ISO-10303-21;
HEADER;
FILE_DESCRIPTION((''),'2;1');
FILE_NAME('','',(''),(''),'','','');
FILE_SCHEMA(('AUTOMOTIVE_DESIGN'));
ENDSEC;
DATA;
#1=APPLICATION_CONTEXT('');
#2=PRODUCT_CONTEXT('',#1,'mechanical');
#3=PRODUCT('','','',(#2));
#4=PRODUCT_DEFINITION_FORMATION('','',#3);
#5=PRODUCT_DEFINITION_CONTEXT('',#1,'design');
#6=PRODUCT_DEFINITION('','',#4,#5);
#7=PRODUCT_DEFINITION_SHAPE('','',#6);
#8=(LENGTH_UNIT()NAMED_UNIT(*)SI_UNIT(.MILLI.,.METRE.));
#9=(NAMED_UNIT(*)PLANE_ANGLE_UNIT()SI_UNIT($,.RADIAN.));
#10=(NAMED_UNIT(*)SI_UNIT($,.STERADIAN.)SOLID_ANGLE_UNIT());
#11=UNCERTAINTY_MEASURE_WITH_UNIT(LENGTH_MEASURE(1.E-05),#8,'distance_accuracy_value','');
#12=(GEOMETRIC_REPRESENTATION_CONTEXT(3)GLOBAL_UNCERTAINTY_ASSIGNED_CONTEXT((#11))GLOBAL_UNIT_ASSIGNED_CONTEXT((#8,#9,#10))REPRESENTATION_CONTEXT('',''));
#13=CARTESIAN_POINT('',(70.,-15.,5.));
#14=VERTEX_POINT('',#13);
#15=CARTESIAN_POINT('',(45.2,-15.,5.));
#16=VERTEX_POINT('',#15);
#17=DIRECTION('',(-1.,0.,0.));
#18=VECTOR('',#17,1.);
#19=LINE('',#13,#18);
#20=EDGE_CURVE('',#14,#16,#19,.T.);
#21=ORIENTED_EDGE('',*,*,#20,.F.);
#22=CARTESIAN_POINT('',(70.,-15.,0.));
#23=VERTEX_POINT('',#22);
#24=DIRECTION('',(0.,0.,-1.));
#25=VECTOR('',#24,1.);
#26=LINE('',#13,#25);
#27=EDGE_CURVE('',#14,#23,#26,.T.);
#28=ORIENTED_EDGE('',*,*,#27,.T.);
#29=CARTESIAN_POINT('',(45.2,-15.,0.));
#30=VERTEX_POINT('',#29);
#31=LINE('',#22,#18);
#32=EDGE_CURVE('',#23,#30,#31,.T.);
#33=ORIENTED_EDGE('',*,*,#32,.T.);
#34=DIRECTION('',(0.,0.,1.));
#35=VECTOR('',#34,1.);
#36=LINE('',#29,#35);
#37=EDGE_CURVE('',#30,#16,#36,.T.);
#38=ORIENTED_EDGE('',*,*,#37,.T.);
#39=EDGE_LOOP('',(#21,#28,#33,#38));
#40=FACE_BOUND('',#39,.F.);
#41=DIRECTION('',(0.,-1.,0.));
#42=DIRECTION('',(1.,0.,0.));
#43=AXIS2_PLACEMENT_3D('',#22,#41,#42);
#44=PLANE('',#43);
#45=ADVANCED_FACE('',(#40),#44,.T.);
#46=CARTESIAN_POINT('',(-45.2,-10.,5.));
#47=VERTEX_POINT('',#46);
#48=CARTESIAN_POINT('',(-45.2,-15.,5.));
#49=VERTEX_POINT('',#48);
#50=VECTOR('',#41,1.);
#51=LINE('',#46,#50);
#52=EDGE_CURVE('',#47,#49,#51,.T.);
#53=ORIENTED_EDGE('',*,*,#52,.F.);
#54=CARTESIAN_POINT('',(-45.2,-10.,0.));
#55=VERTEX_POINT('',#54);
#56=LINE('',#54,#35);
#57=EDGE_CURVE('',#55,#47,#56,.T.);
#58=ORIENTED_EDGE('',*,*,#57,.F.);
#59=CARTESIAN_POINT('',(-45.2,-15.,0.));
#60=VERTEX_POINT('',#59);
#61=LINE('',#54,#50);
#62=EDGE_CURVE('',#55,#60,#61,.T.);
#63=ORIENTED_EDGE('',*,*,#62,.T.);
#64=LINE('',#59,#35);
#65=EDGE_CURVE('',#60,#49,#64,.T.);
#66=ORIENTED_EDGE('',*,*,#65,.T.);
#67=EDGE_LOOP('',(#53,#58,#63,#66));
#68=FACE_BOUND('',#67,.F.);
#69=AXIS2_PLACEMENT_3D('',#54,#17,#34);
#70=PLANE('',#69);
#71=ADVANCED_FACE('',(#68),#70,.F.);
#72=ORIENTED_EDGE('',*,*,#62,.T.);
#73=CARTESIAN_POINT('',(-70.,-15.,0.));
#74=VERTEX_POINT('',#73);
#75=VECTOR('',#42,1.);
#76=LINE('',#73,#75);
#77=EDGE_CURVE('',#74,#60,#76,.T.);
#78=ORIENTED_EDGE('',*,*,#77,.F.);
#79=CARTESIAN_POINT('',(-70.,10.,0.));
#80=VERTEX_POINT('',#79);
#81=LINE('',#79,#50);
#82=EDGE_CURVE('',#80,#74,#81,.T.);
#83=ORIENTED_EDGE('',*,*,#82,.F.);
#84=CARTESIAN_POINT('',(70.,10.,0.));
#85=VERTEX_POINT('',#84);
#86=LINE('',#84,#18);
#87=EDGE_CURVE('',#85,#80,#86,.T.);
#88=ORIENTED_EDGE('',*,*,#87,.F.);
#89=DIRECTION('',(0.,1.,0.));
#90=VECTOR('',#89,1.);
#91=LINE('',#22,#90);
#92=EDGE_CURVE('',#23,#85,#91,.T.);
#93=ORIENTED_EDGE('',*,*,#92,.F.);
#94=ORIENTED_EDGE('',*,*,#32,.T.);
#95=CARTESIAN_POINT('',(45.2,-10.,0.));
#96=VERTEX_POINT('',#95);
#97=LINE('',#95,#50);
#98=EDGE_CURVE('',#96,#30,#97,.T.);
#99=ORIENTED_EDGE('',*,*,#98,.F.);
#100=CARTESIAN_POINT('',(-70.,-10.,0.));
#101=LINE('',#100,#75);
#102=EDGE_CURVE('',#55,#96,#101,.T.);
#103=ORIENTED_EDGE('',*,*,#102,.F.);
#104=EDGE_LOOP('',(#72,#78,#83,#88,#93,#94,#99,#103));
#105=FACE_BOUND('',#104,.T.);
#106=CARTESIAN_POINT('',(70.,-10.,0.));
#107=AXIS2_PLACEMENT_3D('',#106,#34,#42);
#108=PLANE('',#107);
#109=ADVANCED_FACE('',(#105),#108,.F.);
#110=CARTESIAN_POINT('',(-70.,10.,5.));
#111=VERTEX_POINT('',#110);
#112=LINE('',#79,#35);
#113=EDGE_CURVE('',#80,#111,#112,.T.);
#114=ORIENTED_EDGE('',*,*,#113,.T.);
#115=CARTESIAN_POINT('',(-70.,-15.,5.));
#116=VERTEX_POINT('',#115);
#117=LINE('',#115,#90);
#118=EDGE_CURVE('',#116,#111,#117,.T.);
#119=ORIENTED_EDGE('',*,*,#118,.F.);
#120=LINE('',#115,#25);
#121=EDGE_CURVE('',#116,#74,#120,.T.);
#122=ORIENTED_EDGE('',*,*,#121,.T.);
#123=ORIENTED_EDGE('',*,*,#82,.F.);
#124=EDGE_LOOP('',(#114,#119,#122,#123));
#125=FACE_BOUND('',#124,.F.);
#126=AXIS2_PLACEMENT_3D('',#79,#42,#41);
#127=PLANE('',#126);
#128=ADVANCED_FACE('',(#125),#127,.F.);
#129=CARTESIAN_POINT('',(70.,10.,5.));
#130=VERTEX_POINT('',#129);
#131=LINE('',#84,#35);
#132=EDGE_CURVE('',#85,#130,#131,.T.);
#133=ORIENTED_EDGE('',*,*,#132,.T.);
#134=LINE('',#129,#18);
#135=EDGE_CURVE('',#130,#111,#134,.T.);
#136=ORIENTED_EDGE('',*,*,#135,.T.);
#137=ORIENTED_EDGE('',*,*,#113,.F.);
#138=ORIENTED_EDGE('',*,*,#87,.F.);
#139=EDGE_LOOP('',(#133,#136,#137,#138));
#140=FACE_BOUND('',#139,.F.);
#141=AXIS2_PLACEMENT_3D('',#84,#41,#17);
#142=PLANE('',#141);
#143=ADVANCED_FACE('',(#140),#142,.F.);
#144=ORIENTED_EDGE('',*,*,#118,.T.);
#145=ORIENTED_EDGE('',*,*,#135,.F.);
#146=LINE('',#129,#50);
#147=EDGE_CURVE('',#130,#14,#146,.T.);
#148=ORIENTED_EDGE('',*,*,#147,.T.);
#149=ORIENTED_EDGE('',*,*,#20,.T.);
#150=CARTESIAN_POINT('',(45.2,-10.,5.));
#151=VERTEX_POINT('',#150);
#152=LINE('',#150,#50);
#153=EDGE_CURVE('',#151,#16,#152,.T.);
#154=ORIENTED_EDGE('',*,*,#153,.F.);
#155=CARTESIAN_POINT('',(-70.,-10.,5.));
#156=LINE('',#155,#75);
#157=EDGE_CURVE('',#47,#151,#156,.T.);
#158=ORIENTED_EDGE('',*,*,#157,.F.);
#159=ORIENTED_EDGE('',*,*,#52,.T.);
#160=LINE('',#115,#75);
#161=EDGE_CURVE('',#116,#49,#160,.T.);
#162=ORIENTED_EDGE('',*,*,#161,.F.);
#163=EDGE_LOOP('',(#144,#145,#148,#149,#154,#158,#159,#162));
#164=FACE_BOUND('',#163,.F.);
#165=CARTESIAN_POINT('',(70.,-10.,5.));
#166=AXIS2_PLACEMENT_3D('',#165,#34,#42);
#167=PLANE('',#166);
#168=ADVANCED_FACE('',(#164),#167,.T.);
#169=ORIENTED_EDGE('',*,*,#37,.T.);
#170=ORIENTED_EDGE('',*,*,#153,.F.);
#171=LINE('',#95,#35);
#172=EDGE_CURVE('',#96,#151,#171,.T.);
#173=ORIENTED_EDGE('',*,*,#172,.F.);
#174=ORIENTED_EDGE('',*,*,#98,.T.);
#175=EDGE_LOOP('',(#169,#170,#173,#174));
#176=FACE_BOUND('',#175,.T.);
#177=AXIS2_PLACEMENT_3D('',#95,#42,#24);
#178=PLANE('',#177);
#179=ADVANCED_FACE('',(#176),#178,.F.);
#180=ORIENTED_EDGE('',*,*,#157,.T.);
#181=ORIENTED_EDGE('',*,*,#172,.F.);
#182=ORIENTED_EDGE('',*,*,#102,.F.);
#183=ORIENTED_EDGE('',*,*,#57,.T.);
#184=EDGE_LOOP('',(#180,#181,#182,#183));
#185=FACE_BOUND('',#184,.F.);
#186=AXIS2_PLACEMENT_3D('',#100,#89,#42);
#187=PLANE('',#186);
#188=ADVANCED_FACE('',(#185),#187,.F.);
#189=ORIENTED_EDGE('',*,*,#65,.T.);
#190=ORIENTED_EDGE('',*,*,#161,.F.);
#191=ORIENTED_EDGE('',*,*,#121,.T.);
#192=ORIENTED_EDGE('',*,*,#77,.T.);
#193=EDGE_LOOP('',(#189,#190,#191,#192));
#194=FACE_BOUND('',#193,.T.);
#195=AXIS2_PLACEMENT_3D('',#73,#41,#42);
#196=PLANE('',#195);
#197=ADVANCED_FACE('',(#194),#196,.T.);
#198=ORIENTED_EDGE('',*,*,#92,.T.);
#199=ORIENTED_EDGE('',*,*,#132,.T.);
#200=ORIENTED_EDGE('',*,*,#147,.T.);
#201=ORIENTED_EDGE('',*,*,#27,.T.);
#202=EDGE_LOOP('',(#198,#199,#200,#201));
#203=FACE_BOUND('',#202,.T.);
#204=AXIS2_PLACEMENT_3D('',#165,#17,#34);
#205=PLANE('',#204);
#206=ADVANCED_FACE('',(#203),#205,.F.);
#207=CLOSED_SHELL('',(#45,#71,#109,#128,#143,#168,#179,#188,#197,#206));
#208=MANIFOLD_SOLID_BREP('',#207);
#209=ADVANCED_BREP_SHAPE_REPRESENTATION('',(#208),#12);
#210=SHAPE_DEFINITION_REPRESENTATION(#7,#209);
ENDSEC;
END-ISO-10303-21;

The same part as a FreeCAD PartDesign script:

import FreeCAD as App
import Part
import Sketcher
Q = App.Units.Quantity


def add_polygon(sketch, points):
    """Adds a closed chain of lines whose ends are joined by coincident constraints."""
    first, n = sketch.GeometryCount, len(points)
    for a, b in zip(points, points[1:] + points[:1]):
        sketch.addGeometry(Part.LineSegment(App.Vector(*a, 0), App.Vector(*b, 0)), False)
    for i in range(n):
        sketch.addConstraint(Sketcher.Constraint("Coincident", first + i, 2, first + (i + 1) % n, 1))

doc = App.newDocument("Part")
params = doc.addObject("Spreadsheet::Sheet", "Params")
for row, (alias, value) in enumerate([
    ("sketch1_width", "140 mm"),
    ("sketch1_height", "20 mm"),
    ("pad1_length", "5 mm"),
    ("sketch2_width", "24.8 mm"),
    ("sketch2_height", "5 mm"),
    ("pad2_length", "5 mm"),
], start=1):
    params.set(f"A{row}", alias)
    params.set(f"B{row}", "=" + value)
    params.setAlias(f"B{row}", alias)

body = doc.addObject("PartDesign::Body", "Body")

sketch1 = body.newObject("Sketcher::SketchObject", "Sketch")
sketch1.AttachmentSupport = (doc.getObject("XY_Plane"), [""])
sketch1.MapMode = "FlatFace"
add_polygon(sketch1, [(-70, 10), (-70, -10), (70, -10), (70, 10)])
sketch1.addConstraint([
    Sketcher.Constraint("Vertical", 0),
    Sketcher.Constraint("Horizontal", 1),
    Sketcher.Constraint("Vertical", 2),
    Sketcher.Constraint("Horizontal", 3),
    Sketcher.Constraint("Symmetric", 0, 2, 2, 2, -1, 1),
    Sketcher.Constraint("DistanceX", 1, 1, 1, 2, Q("140 mm")),
    Sketcher.Constraint("DistanceY", 0, 2, 0, 1, Q("20 mm")),
])
sketch1.setExpression("Constraints[9]", "Params.sketch1_width")
sketch1.setExpression("Constraints[10]", "Params.sketch1_height")
pad1 = body.newObject("PartDesign::Pad", "Pad")
pad1.Profile = sketch1
pad1.setExpression("Length", "Params.pad1_length")

sketch2 = body.newObject("Sketcher::SketchObject", "Sketch001")
sketch2.AttachmentSupport = (doc.getObject("XZ_Plane"), [""])
sketch2.MapMode = "FlatFace"
sketch2.AttachmentOffset = App.Placement(App.Vector(0, 0, 10), App.Rotation())
add_polygon(sketch2, [(-70, 5), (-70, 0), (-45, 0), (-45, 5)])
sketch2.addConstraint([
    Sketcher.Constraint("Vertical", 0),
    Sketcher.Constraint("Horizontal", 1),
    Sketcher.Constraint("Vertical", 2),
    Sketcher.Constraint("Horizontal", 3),
    Sketcher.Constraint("PointOnObject", 0, 2, -1),
    Sketcher.Constraint("DistanceX", 1, 1, 1, 2, Q("24.8 mm")),
    Sketcher.Constraint("DistanceY", 0, 2, 0, 1, Q("5 mm")),
    Sketcher.Constraint("DistanceX", 0, 2, -1, 1, Q("70 mm")),
])
sketch2.setExpression("Constraints[9]", "Params.sketch2_width")
sketch2.setExpression("Constraints[10]", "Params.sketch2_height")
pad2 = body.newObject("PartDesign::Pad", "Pad001")
pad2.Profile = sketch2
pad2.setExpression("Length", "Params.pad2_length")
doc.recompute()

mirrored = body.newObject("PartDesign::Mirrored", "Mirrored")
mirrored.Originals = [pad2]
mirrored.MirrorPlane = (doc.getObject("YZ_Plane"), [""])
body.Tip = mirrored

doc.recompute()
